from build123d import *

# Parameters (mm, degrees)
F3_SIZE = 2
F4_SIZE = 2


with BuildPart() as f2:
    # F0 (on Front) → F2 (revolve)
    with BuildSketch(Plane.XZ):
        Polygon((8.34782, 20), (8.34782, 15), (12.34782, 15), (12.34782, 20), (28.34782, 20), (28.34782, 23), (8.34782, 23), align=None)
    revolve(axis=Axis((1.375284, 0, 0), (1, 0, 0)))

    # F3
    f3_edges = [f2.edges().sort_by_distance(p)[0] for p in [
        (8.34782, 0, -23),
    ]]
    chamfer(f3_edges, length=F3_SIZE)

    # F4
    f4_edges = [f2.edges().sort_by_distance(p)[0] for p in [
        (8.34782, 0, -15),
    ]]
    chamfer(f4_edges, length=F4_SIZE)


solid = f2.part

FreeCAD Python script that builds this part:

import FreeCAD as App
import Part
import Sketcher


def edges_at(feature, points):
    """Names of the edges that pass closest to the given points."""
    edges = feature.Shape.Edges
    near = lambda p: min(range(len(edges)), key=lambda i: edges[i].distToShape(Part.Vertex(*p))[0])
    return sorted({f"Edge{near(p) + 1}" for p in points})


def add_polygon(sketch, points):
    """Adds a closed chain of lines whose ends are joined by coincident constraints."""
    first, n = sketch.GeometryCount, len(points)
    for a, b in zip(points, points[1:] + points[:1]):
        sketch.addGeometry(Part.LineSegment(App.Vector(*a, 0), App.Vector(*b, 0)), False)
    for i in range(n):
        sketch.addConstraint(Sketcher.Constraint("Coincident", first + i, 2, first + (i + 1) % n, 1))

doc = App.newDocument("Part")
params = doc.addObject("Spreadsheet::Sheet", "Params")
for row, (alias, value) in enumerate([
    ("sketch1_width", "4 mm"),
    ("sketch1_width2", "16 mm"),
    ("sketch1_height", "5 mm"),
    ("sketch1_height2", "3 mm"),
    ("revolution_angle", "360 deg"),
    ("chamfer_size", "2 mm"),
    ("chamfer2_size", "2 mm"),
], start=1):
    params.set(f"A{row}", alias)
    params.set(f"B{row}", "=" + value)
    params.setAlias(f"B{row}", alias)

body = doc.addObject("PartDesign::Body", "Body")

# Sketch on XZ plane
sketch1 = doc.addObject("Sketcher::SketchObject", "Sketch")
body.addObject(sketch1)
sketch1.AttachmentSupport = (doc.XZ_Plane, [""])
sketch1.MapMode = "FlatFace"
add_polygon(sketch1, [(8.3, 15), (12.3, 15), (12.3, 20), (28.3, 20), (28.3, 23), (8.3, 23)])  # lines 0-5
sketch1.addConstraint([
    Sketcher.Constraint("Horizontal", 0),
    Sketcher.Constraint("Vertical", 1),
    Sketcher.Constraint("Horizontal", 2),
    Sketcher.Constraint("Vertical", 3),
    Sketcher.Constraint("Horizontal", 4),
    Sketcher.Constraint("Vertical", 5),
    Sketcher.Constraint("DistanceX", 0, 1, 0, 2, 4.0),
    Sketcher.Constraint("DistanceX", 2, 1, 2, 2, 16.0),
    Sketcher.Constraint("DistanceY", 1, 1, 1, 2, 5.0),
    Sketcher.Constraint("DistanceY", 3, 1, 3, 2, 3.0),
    Sketcher.Constraint("DistanceY", -1, 1, 0, 2, 15.0),
    Sketcher.Constraint("DistanceX", -1, 1, 0, 2, 12.34782),
])
sketch1.setExpression("Constraints[12]", "Params.sketch1_width")
sketch1.setExpression("Constraints[13]", "Params.sketch1_width2")
sketch1.setExpression("Constraints[14]", "Params.sketch1_height")
sketch1.setExpression("Constraints[15]", "Params.sketch1_height2")
revolution = doc.addObject("PartDesign::Revolution", "Revolution")
body.addObject(revolution)
revolution.Profile = sketch1
revolution.ReferenceAxis = (sketch1, ["H_Axis"])
revolution.setExpression("Angle", "Params.revolution_angle")
doc.recompute()

chamfer = doc.addObject("PartDesign::Chamfer", "Chamfer")
body.addObject(chamfer)
chamfer.Base = (revolution, edges_at(revolution, [(8.348, 0, -23)]))
chamfer.setExpression("Size", "Params.chamfer_size")
doc.recompute()

chamfer2 = doc.addObject("PartDesign::Chamfer", "Chamfer001")
body.addObject(chamfer2)
chamfer2.Base = (chamfer, edges_at(chamfer, [(8.348, 0, -15)]))
chamfer2.setExpression("Size", "Params.chamfer2_size")

doc.recompute()
